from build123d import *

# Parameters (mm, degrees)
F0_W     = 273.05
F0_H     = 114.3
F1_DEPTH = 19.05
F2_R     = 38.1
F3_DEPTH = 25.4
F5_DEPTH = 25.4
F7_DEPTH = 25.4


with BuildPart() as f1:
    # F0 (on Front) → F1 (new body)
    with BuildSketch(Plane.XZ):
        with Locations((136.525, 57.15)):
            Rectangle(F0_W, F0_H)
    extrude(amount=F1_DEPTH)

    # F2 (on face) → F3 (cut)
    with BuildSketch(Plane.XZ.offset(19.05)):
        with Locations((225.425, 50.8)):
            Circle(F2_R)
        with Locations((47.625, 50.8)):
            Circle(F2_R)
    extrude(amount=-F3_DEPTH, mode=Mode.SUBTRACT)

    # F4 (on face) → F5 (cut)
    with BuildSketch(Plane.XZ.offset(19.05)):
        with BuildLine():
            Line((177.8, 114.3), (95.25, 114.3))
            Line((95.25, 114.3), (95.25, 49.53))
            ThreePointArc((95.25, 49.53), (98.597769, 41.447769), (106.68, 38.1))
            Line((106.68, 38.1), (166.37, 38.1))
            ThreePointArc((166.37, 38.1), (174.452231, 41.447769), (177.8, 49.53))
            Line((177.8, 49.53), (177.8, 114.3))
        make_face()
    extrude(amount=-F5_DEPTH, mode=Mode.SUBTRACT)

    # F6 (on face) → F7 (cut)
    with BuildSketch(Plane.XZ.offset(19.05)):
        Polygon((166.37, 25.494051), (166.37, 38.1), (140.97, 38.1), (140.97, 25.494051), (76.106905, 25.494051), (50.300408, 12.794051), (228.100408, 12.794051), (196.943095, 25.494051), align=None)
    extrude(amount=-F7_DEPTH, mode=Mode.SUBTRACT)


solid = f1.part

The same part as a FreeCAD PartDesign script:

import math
import FreeCAD as App
import Part
import Sketcher

V = App.Vector
Q = App.Units.Quantity


def add_polygon(sketch, points):
    """Adds a closed chain of lines whose ends are joined by coincident constraints."""
    first, n = sketch.GeometryCount, len(points)
    for a, b in zip(points, points[1:] + points[:1]):
        sketch.addGeometry(Part.LineSegment(App.Vector(*a, 0), App.Vector(*b, 0)), False)
    for i in range(n):
        sketch.addConstraint(Sketcher.Constraint("Coincident", first + i, 2, first + (i + 1) % n, 1))

doc = App.newDocument("Part")
body = doc.addObject("PartDesign::Body", "Body")

# Sketch on XZ plane
sketch1 = body.newObject("Sketcher::SketchObject", "Sketch")
sketch1.AttachmentSupport = (doc.getObject("XZ_Plane"), [""])
sketch1.MapMode = "FlatFace"
add_polygon(sketch1, [(0, 114.3), (0, 0), (273.05, 0), (273.05, 114.3)])  # lines 0-3
sketch1.addConstraint(Sketcher.Constraint("Vertical", 0))
sketch1.addConstraint(Sketcher.Constraint("Horizontal", 1))
sketch1.addConstraint(Sketcher.Constraint("Vertical", 2))
sketch1.addConstraint(Sketcher.Constraint("Horizontal", 3))
sketch1.addConstraint(Sketcher.Constraint("Coincident", 0, 2, -1, 1))
sketch1.addConstraint(Sketcher.Constraint("DistanceY", 0, 2, 0, 1, Q("4.5 in")))
sketch1.addConstraint(Sketcher.Constraint("DistanceX", 1, 1, 1, 2, Q("10.75 in")))
pad1 = body.newObject("PartDesign::Pad", "Pad")
pad1.Profile = sketch1
pad1.Length = Q("0.75 in")

# Sketch on XZ plane
sketch2 = body.newObject("Sketcher::SketchObject", "Sketch001")
sketch2.AttachmentSupport = (doc.getObject("XZ_Plane"), [""])
sketch2.MapMode = "FlatFace"
sketch2.AttachmentOffset = App.Placement(V(0, 0, 0.75 * 25.4), App.Rotation())
sketch2.addGeometry(Part.Circle(V(225.425, 50.8, 0), V(0, 0, 1), 38.1), False)
sketch2.addGeometry(Part.Circle(V(47.625, 50.8, 0), V(0, 0, 1), 38.1), False)
sketch2.addConstraint(Sketcher.Constraint("Equal", 0, 1))
sketch2.addConstraint(Sketcher.Constraint("Horizontal", 0, 3, 1, 3))
sketch2.addConstraint(Sketcher.Constraint("Diameter", 0, Q("3 in")))
sketch2.addConstraint(Sketcher.Constraint("DistanceY", -1, 1, 0, 3, Q("2 in")))
sketch2.addConstraint(Sketcher.Constraint("DistanceX", 1, 3, 0, 3, Q("7 in")))
sketch2.addConstraint(Sketcher.Constraint("DistanceX", -1, 1, 0, 3, Q("8.875 in")))
pocket1 = body.newObject("PartDesign::Pocket", "Pocket")
pocket1.Profile = sketch2
pocket1.Length = Q("1 in")

# Sketch on XZ plane
sketch3 = body.newObject("Sketcher::SketchObject", "Sketch002")
sketch3.AttachmentSupport = (doc.getObject("XZ_Plane"), [""])
sketch3.MapMode = "FlatFace"
sketch3.AttachmentOffset = App.Placement(V(0, 0, 0.75 * 25.4), App.Rotation())
sketch3.addGeometry(Part.LineSegment(V(177.8, 114.3, 0), V(95.25, 114.3, 0)), False)
sketch3.addGeometry(Part.LineSegment(V(95.25, 114.3, 0), V(95.25, 49.53, 0)), False)
sketch3.addGeometry(Part.ArcOfCircle(Part.Circle(V(106.679998, 49.529998, 0), V(0, 0, 1), 11.429998), math.radians(179.999992), math.radians(270.000008)), False)
sketch3.addGeometry(Part.LineSegment(V(106.68, 38.1, 0), V(166.37, 38.1, 0)), False)
sketch3.addGeometry(Part.ArcOfCircle(Part.Circle(V(166.370002, 49.529998, 0), V(0, 0, 1), 11.429998), math.radians(-90.000008), math.radians(0.000008)), False)
sketch3.addGeometry(Part.LineSegment(V(177.8, 49.53, 0), V(177.8, 114.3, 0)), False)
sketch3.addConstraint(Sketcher.Constraint("Coincident", 0, 2, 1, 1))
sketch3.addConstraint(Sketcher.Constraint("Tangent", 1, 2, 2, 1))
sketch3.addConstraint(Sketcher.Constraint("Tangent", 2, 2, 3, 1))
sketch3.addConstraint(Sketcher.Constraint("Tangent", 3, 2, 4, 1))
sketch3.addConstraint(Sketcher.Constraint("Tangent", 4, 2, 5, 1))
sketch3.addConstraint(Sketcher.Constraint("Coincident", 5, 2, 0, 1))
sketch3.addConstraint(Sketcher.Constraint("Horizontal", 0))
sketch3.addConstraint(Sketcher.Constraint("Vertical", 1))
sketch3.addConstraint(Sketcher.Constraint("Horizontal", 3))
sketch3.addConstraint(Sketcher.Constraint("Vertical", 5))
sketch3.addConstraint(Sketcher.Constraint("Equal", 2, 4))
sketch3.addConstraint(Sketcher.Constraint("Radius", 2, Q("0.4499999 in")))
sketch3.addConstraint(Sketcher.Constraint("DistanceX", -1, 1, 4, 2, Q("7 in")))
sketch3.addConstraint(Sketcher.Constraint("DistanceY", 2, 2, 0, 2, Q("3 in")))
sketch3.addConstraint(Sketcher.Constraint("DistanceX", 0, 2, 0, 1, Q("3.25 in")))
sketch3.addConstraint(Sketcher.Constraint("DistanceY", -1, 1, 0, 2, Q("4.5 in")))
pocket2 = body.newObject("PartDesign::Pocket", "Pocket001")
pocket2.Profile = sketch3
pocket2.Length = Q("1 in")

# Sketch on XZ plane
sketch4 = body.newObject("Sketcher::SketchObject", "Sketch003")
sketch4.AttachmentSupport = (doc.getObject("XZ_Plane"), [""])
sketch4.MapMode = "FlatFace"
sketch4.AttachmentOffset = App.Placement(V(0, 0, 0.75 * 25.4), App.Rotation())
add_polygon(sketch4, [(166.37, 25.494051), (166.37, 38.1), (140.97, 38.1), (140.97, 25.494051), (76.106905, 25.494051), (50.300408, 12.794051), (228.100408, 12.794051), (196.943095, 25.494051)])  # lines 0-7
sketch4.addConstraint(Sketcher.Constraint("Vertical", 0))
sketch4.addConstraint(Sketcher.Constraint("Horizontal", 1))
sketch4.addConstraint(Sketcher.Constraint("Vertical", 2))
sketch4.addConstraint(Sketcher.Constraint("Horizontal", 3))
sketch4.addConstraint(Sketcher.Constraint("Horizontal", 5))
sketch4.addConstraint(Sketcher.Constraint("Horizontal", 7))
sketch4.addConstraint(Sketcher.Constraint("Horizontal", 3, 2, 6, 2))
sketch4.addConstraint(Sketcher.Constraint("DistanceX", 1, 2, 1, 1, Q("1 in")))
sketch4.addConstraint(Sketcher.Constraint("DistanceX", 5, 1, 5, 2, Q("7 in")))
sketch4.addConstraint(Sketcher.Constraint("DistanceY", -1, 1, 0, 2, Q("1.5 in")))
sketch4.addConstraint(Sketcher.Constraint("DistanceY", 4, 2, 3, 2, Q("0.5 in")))
sketch4.addConstraint(Sketcher.Constraint("DistanceX", -1, 1, 0, 2, Q("6.55 in")))
sketch4.addConstraint(Sketcher.Constraint("DistanceY", 0, 1, 0, 2, Q("12.605949 mm")))
sketch4.addConstraint(Sketcher.Constraint("Distance", 4, Q("28.76222 mm")))
sketch4.addConstraint(Sketcher.Constraint("Distance", 6, Q("33.64622 mm")))
sketch4.addConstraint(Sketcher.Constraint("DistanceX", 3, 2, 3, 1, Q("64.863095 mm")))
pocket3 = body.newObject("PartDesign::Pocket", "Pocket002")
pocket3.Profile = sketch4
pocket3.Length = Q("1 in")

doc.recompute()
